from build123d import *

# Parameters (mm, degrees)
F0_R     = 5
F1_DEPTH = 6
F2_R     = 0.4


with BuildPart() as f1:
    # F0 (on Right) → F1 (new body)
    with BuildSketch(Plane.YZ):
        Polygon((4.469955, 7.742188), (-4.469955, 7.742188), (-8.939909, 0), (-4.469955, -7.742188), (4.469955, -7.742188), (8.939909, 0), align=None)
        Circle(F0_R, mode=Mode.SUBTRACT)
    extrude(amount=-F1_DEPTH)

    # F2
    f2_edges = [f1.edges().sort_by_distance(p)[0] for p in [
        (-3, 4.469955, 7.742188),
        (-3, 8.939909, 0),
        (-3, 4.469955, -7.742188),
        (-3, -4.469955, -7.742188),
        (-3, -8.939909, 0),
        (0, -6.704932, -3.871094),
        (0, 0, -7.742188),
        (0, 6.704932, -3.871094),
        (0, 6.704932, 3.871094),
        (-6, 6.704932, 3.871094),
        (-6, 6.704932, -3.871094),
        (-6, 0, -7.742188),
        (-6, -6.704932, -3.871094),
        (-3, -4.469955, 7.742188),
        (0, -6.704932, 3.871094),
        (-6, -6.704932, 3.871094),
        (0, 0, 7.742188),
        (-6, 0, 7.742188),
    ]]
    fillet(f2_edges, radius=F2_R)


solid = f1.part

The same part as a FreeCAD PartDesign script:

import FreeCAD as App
import Part
import Sketcher
Q = App.Units.Quantity


def edges_at(feature, points):
    """Names of the edges that pass closest to the given points."""
    edges = feature.Shape.Edges
    near = lambda p: min(range(len(edges)), key=lambda i: edges[i].distToShape(Part.Vertex(*p))[0])
    return sorted({f"Edge{near(p) + 1}" for p in points})

doc = App.newDocument("Part")
body = doc.addObject("PartDesign::Body", "Body")

sketch1 = body.newObject("Sketcher::SketchObject", "Sketch")
sketch1.AttachmentSupport = (doc.getObject("YZ_Plane"), [""])
sketch1.MapMode = "FlatFace"
sketch1.addGeometry([
    Part.LineSegment(App.Vector(4, 8, 0), App.Vector(-4, 8, 0)),
    Part.LineSegment(App.Vector(-4, 8, 0), App.Vector(-9, 0, 0)),
    Part.LineSegment(App.Vector(-9, 0, 0), App.Vector(-4, -8, 0)),
    Part.LineSegment(App.Vector(-4, -8, 0), App.Vector(4, -8, 0)),
    Part.LineSegment(App.Vector(4, -8, 0), App.Vector(9, 0, 0)),
    Part.LineSegment(App.Vector(9, 0, 0), App.Vector(4, 8, 0)),
    Part.Circle(App.Vector(0, 0, 0), App.Vector(0, 0, 1), 5),
], False)
sketch1.addConstraint([
    Sketcher.Constraint("Coincident", 0, 2, 1, 1),
    Sketcher.Constraint("Coincident", 1, 2, 2, 1),
    Sketcher.Constraint("Coincident", 2, 2, 3, 1),
    Sketcher.Constraint("Coincident", 3, 2, 4, 1),
    Sketcher.Constraint("Coincident", 4, 2, 5, 1),
    Sketcher.Constraint("Coincident", 5, 2, 0, 1),
    Sketcher.Constraint("Horizontal", 0),
    Sketcher.Constraint("Horizontal", 3),
    Sketcher.Constraint("Coincident", 6, 3, -1, 1),
    Sketcher.Constraint("Symmetric", 0, 2, 3, 2, -1, 1),
    Sketcher.Constraint("Symmetric", 1, 2, 4, 2, -1, 1),
    Sketcher.Constraint("PointOnObject", 1, 2, -1),
    Sketcher.Constraint("Parallel", 2, 5),
    Sketcher.Constraint("Vertical", 0, 2, 2, 2),
    Sketcher.Constraint("Diameter", 6, 10.0),
    Sketcher.Constraint("Angle", 1, Q("-119.999998 deg")),
    Sketcher.Constraint("DistanceX", 0, 2, 0, 1, 8.93991),
    Sketcher.Constraint("Distance", 1, 8.939908),
])
pad1 = body.newObject("PartDesign::Pad", "Pad")
pad1.Profile = sketch1
pad1.Length = 6
pad1.Reversed = True
doc.recompute()

fillet = body.newObject("PartDesign::Fillet", "Fillet")
fillet.Base = (pad1, edges_at(pad1, [
    (-3, 4.47, 7.742),
    (-3, 8.94, 0),
    (-3, 4.47, -7.742),
    (-3, -4.47, -7.742),
    (-3, -8.94, 0),
    (0, -6.705, -3.871),
    (0, 0, -7.742),
    (0, 6.705, -3.871),
    (0, 6.705, 3.871),
    (-6, 6.705, 3.871),
    (-6, 6.705, -3.871),
    (-6, 0, -7.742),
    (-6, -6.705, -3.871),
    (-3, -4.47, 7.742),
    (0, -6.705, 3.871),
    (-6, -6.705, 3.871),
    (0, 0, 7.742),
    (-6, 0, 7.742),
]))
fillet.Radius = 0.4

doc.recompute()
